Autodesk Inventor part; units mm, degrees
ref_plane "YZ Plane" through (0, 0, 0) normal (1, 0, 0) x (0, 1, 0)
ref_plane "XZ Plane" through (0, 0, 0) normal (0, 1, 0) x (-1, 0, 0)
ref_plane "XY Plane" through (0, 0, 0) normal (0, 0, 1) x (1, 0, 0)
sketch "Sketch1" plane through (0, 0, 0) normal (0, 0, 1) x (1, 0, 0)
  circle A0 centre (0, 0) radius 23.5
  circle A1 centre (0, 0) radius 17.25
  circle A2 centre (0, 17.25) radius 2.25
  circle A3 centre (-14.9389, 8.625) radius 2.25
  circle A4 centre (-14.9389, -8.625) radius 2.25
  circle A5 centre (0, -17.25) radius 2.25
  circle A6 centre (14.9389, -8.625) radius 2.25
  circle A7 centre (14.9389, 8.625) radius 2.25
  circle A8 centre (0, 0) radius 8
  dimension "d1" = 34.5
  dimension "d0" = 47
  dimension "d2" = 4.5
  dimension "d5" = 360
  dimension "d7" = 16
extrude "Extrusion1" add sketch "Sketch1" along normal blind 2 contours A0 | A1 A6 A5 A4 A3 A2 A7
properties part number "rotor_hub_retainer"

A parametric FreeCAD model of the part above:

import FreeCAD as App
import Part
import Sketcher

V = App.Vector
Q = App.Units.Quantity

doc = App.newDocument("Part")
body = doc.addObject("PartDesign::Body", "Body")

# Sketch on XY plane
sketch1 = body.newObject("Sketcher::SketchObject", "Sketch")
sketch1.AttachmentSupport = (doc.getObject("XY_Plane"), [""])
sketch1.MapMode = "FlatFace"
sketch1.addGeometry(Part.Circle(V(0, 0, 0), V(0, 0, 1), 23.5), False)
sketch1.addGeometry(Part.Circle(V(14.9, 8.6, 0), V(0, 0, 1), 2.2), False)
sketch1.addGeometry(Part.Circle(V(0, 17.2, 0), V(0, 0, 1), 2.2), False)
sketch1.addGeometry(Part.Circle(V(-14.9, 8.6, 0), V(0, 0, 1), 2.2), False)
sketch1.addGeometry(Part.Circle(V(-14.9, -8.6, 0), V(0, 0, 1), 2.2), False)
sketch1.addGeometry(Part.Circle(V(0, -17.2, 0), V(0, 0, 1), 2.2), False)
sketch1.addGeometry(Part.Circle(V(14.9, -8.6, 0), V(0, 0, 1), 2.2), False)
sketch1.addGeometry(Part.Circle(V(0, 0, 0), V(0, 0, 1), 8), False)
sketch1.addConstraint(Sketcher.Constraint("Coincident", 0, 3, -1, 1))
sketch1.addConstraint(Sketcher.Constraint("Coincident", 7, 3, -1, 1))
sketch1.addConstraint(Sketcher.Constraint("Equal", 1, 2))
sketch1.addConstraint(Sketcher.Constraint("Equal", 2, 3))
sketch1.addConstraint(Sketcher.Constraint("Equal", 3, 4))
sketch1.addConstraint(Sketcher.Constraint("Equal", 4, 5))
sketch1.addConstraint(Sketcher.Constraint("Equal", 5, 6))
sketch1.addConstraint(Sketcher.Constraint("Symmetric", 1, 3, 4, 3, -1, 1))
sketch1.addConstraint(Sketcher.Constraint("Symmetric", 2, 3, 5, 3, -1, 1))
sketch1.addConstraint(Sketcher.Constraint("Symmetric", 3, 3, 6, 3, -1, 1))
sketch1.addConstraint(Sketcher.Constraint("Symmetric", 1, 3, 3, 3, -2))
sketch1.addConstraint(Sketcher.Constraint("PointOnObject", 2, 3, -2))
sketch1.addConstraint(Sketcher.Constraint("Diameter", 0, Q("47 mm")))
sketch1.addConstraint(Sketcher.Constraint("Diameter", 7, Q("16 mm")))
sketch1.addConstraint(Sketcher.Constraint("Diameter", 1, Q("4.5 mm")))
sketch1.addConstraint(Sketcher.Constraint("DistanceY", 5, 3, 2, 3, Q("34.5 mm")))
sketch1.addConstraint(Sketcher.Constraint("DistanceY", 4, 3, 3, 3, Q("17.25 mm")))
sketch1.addConstraint(Sketcher.Constraint("DistanceX", -1, 1, 1, 3, Q("14.939 mm")))
pad1 = body.newObject("PartDesign::Pad", "Pad")
pad1.Profile = sketch1
pad1.Length = 2

doc.recompute()
